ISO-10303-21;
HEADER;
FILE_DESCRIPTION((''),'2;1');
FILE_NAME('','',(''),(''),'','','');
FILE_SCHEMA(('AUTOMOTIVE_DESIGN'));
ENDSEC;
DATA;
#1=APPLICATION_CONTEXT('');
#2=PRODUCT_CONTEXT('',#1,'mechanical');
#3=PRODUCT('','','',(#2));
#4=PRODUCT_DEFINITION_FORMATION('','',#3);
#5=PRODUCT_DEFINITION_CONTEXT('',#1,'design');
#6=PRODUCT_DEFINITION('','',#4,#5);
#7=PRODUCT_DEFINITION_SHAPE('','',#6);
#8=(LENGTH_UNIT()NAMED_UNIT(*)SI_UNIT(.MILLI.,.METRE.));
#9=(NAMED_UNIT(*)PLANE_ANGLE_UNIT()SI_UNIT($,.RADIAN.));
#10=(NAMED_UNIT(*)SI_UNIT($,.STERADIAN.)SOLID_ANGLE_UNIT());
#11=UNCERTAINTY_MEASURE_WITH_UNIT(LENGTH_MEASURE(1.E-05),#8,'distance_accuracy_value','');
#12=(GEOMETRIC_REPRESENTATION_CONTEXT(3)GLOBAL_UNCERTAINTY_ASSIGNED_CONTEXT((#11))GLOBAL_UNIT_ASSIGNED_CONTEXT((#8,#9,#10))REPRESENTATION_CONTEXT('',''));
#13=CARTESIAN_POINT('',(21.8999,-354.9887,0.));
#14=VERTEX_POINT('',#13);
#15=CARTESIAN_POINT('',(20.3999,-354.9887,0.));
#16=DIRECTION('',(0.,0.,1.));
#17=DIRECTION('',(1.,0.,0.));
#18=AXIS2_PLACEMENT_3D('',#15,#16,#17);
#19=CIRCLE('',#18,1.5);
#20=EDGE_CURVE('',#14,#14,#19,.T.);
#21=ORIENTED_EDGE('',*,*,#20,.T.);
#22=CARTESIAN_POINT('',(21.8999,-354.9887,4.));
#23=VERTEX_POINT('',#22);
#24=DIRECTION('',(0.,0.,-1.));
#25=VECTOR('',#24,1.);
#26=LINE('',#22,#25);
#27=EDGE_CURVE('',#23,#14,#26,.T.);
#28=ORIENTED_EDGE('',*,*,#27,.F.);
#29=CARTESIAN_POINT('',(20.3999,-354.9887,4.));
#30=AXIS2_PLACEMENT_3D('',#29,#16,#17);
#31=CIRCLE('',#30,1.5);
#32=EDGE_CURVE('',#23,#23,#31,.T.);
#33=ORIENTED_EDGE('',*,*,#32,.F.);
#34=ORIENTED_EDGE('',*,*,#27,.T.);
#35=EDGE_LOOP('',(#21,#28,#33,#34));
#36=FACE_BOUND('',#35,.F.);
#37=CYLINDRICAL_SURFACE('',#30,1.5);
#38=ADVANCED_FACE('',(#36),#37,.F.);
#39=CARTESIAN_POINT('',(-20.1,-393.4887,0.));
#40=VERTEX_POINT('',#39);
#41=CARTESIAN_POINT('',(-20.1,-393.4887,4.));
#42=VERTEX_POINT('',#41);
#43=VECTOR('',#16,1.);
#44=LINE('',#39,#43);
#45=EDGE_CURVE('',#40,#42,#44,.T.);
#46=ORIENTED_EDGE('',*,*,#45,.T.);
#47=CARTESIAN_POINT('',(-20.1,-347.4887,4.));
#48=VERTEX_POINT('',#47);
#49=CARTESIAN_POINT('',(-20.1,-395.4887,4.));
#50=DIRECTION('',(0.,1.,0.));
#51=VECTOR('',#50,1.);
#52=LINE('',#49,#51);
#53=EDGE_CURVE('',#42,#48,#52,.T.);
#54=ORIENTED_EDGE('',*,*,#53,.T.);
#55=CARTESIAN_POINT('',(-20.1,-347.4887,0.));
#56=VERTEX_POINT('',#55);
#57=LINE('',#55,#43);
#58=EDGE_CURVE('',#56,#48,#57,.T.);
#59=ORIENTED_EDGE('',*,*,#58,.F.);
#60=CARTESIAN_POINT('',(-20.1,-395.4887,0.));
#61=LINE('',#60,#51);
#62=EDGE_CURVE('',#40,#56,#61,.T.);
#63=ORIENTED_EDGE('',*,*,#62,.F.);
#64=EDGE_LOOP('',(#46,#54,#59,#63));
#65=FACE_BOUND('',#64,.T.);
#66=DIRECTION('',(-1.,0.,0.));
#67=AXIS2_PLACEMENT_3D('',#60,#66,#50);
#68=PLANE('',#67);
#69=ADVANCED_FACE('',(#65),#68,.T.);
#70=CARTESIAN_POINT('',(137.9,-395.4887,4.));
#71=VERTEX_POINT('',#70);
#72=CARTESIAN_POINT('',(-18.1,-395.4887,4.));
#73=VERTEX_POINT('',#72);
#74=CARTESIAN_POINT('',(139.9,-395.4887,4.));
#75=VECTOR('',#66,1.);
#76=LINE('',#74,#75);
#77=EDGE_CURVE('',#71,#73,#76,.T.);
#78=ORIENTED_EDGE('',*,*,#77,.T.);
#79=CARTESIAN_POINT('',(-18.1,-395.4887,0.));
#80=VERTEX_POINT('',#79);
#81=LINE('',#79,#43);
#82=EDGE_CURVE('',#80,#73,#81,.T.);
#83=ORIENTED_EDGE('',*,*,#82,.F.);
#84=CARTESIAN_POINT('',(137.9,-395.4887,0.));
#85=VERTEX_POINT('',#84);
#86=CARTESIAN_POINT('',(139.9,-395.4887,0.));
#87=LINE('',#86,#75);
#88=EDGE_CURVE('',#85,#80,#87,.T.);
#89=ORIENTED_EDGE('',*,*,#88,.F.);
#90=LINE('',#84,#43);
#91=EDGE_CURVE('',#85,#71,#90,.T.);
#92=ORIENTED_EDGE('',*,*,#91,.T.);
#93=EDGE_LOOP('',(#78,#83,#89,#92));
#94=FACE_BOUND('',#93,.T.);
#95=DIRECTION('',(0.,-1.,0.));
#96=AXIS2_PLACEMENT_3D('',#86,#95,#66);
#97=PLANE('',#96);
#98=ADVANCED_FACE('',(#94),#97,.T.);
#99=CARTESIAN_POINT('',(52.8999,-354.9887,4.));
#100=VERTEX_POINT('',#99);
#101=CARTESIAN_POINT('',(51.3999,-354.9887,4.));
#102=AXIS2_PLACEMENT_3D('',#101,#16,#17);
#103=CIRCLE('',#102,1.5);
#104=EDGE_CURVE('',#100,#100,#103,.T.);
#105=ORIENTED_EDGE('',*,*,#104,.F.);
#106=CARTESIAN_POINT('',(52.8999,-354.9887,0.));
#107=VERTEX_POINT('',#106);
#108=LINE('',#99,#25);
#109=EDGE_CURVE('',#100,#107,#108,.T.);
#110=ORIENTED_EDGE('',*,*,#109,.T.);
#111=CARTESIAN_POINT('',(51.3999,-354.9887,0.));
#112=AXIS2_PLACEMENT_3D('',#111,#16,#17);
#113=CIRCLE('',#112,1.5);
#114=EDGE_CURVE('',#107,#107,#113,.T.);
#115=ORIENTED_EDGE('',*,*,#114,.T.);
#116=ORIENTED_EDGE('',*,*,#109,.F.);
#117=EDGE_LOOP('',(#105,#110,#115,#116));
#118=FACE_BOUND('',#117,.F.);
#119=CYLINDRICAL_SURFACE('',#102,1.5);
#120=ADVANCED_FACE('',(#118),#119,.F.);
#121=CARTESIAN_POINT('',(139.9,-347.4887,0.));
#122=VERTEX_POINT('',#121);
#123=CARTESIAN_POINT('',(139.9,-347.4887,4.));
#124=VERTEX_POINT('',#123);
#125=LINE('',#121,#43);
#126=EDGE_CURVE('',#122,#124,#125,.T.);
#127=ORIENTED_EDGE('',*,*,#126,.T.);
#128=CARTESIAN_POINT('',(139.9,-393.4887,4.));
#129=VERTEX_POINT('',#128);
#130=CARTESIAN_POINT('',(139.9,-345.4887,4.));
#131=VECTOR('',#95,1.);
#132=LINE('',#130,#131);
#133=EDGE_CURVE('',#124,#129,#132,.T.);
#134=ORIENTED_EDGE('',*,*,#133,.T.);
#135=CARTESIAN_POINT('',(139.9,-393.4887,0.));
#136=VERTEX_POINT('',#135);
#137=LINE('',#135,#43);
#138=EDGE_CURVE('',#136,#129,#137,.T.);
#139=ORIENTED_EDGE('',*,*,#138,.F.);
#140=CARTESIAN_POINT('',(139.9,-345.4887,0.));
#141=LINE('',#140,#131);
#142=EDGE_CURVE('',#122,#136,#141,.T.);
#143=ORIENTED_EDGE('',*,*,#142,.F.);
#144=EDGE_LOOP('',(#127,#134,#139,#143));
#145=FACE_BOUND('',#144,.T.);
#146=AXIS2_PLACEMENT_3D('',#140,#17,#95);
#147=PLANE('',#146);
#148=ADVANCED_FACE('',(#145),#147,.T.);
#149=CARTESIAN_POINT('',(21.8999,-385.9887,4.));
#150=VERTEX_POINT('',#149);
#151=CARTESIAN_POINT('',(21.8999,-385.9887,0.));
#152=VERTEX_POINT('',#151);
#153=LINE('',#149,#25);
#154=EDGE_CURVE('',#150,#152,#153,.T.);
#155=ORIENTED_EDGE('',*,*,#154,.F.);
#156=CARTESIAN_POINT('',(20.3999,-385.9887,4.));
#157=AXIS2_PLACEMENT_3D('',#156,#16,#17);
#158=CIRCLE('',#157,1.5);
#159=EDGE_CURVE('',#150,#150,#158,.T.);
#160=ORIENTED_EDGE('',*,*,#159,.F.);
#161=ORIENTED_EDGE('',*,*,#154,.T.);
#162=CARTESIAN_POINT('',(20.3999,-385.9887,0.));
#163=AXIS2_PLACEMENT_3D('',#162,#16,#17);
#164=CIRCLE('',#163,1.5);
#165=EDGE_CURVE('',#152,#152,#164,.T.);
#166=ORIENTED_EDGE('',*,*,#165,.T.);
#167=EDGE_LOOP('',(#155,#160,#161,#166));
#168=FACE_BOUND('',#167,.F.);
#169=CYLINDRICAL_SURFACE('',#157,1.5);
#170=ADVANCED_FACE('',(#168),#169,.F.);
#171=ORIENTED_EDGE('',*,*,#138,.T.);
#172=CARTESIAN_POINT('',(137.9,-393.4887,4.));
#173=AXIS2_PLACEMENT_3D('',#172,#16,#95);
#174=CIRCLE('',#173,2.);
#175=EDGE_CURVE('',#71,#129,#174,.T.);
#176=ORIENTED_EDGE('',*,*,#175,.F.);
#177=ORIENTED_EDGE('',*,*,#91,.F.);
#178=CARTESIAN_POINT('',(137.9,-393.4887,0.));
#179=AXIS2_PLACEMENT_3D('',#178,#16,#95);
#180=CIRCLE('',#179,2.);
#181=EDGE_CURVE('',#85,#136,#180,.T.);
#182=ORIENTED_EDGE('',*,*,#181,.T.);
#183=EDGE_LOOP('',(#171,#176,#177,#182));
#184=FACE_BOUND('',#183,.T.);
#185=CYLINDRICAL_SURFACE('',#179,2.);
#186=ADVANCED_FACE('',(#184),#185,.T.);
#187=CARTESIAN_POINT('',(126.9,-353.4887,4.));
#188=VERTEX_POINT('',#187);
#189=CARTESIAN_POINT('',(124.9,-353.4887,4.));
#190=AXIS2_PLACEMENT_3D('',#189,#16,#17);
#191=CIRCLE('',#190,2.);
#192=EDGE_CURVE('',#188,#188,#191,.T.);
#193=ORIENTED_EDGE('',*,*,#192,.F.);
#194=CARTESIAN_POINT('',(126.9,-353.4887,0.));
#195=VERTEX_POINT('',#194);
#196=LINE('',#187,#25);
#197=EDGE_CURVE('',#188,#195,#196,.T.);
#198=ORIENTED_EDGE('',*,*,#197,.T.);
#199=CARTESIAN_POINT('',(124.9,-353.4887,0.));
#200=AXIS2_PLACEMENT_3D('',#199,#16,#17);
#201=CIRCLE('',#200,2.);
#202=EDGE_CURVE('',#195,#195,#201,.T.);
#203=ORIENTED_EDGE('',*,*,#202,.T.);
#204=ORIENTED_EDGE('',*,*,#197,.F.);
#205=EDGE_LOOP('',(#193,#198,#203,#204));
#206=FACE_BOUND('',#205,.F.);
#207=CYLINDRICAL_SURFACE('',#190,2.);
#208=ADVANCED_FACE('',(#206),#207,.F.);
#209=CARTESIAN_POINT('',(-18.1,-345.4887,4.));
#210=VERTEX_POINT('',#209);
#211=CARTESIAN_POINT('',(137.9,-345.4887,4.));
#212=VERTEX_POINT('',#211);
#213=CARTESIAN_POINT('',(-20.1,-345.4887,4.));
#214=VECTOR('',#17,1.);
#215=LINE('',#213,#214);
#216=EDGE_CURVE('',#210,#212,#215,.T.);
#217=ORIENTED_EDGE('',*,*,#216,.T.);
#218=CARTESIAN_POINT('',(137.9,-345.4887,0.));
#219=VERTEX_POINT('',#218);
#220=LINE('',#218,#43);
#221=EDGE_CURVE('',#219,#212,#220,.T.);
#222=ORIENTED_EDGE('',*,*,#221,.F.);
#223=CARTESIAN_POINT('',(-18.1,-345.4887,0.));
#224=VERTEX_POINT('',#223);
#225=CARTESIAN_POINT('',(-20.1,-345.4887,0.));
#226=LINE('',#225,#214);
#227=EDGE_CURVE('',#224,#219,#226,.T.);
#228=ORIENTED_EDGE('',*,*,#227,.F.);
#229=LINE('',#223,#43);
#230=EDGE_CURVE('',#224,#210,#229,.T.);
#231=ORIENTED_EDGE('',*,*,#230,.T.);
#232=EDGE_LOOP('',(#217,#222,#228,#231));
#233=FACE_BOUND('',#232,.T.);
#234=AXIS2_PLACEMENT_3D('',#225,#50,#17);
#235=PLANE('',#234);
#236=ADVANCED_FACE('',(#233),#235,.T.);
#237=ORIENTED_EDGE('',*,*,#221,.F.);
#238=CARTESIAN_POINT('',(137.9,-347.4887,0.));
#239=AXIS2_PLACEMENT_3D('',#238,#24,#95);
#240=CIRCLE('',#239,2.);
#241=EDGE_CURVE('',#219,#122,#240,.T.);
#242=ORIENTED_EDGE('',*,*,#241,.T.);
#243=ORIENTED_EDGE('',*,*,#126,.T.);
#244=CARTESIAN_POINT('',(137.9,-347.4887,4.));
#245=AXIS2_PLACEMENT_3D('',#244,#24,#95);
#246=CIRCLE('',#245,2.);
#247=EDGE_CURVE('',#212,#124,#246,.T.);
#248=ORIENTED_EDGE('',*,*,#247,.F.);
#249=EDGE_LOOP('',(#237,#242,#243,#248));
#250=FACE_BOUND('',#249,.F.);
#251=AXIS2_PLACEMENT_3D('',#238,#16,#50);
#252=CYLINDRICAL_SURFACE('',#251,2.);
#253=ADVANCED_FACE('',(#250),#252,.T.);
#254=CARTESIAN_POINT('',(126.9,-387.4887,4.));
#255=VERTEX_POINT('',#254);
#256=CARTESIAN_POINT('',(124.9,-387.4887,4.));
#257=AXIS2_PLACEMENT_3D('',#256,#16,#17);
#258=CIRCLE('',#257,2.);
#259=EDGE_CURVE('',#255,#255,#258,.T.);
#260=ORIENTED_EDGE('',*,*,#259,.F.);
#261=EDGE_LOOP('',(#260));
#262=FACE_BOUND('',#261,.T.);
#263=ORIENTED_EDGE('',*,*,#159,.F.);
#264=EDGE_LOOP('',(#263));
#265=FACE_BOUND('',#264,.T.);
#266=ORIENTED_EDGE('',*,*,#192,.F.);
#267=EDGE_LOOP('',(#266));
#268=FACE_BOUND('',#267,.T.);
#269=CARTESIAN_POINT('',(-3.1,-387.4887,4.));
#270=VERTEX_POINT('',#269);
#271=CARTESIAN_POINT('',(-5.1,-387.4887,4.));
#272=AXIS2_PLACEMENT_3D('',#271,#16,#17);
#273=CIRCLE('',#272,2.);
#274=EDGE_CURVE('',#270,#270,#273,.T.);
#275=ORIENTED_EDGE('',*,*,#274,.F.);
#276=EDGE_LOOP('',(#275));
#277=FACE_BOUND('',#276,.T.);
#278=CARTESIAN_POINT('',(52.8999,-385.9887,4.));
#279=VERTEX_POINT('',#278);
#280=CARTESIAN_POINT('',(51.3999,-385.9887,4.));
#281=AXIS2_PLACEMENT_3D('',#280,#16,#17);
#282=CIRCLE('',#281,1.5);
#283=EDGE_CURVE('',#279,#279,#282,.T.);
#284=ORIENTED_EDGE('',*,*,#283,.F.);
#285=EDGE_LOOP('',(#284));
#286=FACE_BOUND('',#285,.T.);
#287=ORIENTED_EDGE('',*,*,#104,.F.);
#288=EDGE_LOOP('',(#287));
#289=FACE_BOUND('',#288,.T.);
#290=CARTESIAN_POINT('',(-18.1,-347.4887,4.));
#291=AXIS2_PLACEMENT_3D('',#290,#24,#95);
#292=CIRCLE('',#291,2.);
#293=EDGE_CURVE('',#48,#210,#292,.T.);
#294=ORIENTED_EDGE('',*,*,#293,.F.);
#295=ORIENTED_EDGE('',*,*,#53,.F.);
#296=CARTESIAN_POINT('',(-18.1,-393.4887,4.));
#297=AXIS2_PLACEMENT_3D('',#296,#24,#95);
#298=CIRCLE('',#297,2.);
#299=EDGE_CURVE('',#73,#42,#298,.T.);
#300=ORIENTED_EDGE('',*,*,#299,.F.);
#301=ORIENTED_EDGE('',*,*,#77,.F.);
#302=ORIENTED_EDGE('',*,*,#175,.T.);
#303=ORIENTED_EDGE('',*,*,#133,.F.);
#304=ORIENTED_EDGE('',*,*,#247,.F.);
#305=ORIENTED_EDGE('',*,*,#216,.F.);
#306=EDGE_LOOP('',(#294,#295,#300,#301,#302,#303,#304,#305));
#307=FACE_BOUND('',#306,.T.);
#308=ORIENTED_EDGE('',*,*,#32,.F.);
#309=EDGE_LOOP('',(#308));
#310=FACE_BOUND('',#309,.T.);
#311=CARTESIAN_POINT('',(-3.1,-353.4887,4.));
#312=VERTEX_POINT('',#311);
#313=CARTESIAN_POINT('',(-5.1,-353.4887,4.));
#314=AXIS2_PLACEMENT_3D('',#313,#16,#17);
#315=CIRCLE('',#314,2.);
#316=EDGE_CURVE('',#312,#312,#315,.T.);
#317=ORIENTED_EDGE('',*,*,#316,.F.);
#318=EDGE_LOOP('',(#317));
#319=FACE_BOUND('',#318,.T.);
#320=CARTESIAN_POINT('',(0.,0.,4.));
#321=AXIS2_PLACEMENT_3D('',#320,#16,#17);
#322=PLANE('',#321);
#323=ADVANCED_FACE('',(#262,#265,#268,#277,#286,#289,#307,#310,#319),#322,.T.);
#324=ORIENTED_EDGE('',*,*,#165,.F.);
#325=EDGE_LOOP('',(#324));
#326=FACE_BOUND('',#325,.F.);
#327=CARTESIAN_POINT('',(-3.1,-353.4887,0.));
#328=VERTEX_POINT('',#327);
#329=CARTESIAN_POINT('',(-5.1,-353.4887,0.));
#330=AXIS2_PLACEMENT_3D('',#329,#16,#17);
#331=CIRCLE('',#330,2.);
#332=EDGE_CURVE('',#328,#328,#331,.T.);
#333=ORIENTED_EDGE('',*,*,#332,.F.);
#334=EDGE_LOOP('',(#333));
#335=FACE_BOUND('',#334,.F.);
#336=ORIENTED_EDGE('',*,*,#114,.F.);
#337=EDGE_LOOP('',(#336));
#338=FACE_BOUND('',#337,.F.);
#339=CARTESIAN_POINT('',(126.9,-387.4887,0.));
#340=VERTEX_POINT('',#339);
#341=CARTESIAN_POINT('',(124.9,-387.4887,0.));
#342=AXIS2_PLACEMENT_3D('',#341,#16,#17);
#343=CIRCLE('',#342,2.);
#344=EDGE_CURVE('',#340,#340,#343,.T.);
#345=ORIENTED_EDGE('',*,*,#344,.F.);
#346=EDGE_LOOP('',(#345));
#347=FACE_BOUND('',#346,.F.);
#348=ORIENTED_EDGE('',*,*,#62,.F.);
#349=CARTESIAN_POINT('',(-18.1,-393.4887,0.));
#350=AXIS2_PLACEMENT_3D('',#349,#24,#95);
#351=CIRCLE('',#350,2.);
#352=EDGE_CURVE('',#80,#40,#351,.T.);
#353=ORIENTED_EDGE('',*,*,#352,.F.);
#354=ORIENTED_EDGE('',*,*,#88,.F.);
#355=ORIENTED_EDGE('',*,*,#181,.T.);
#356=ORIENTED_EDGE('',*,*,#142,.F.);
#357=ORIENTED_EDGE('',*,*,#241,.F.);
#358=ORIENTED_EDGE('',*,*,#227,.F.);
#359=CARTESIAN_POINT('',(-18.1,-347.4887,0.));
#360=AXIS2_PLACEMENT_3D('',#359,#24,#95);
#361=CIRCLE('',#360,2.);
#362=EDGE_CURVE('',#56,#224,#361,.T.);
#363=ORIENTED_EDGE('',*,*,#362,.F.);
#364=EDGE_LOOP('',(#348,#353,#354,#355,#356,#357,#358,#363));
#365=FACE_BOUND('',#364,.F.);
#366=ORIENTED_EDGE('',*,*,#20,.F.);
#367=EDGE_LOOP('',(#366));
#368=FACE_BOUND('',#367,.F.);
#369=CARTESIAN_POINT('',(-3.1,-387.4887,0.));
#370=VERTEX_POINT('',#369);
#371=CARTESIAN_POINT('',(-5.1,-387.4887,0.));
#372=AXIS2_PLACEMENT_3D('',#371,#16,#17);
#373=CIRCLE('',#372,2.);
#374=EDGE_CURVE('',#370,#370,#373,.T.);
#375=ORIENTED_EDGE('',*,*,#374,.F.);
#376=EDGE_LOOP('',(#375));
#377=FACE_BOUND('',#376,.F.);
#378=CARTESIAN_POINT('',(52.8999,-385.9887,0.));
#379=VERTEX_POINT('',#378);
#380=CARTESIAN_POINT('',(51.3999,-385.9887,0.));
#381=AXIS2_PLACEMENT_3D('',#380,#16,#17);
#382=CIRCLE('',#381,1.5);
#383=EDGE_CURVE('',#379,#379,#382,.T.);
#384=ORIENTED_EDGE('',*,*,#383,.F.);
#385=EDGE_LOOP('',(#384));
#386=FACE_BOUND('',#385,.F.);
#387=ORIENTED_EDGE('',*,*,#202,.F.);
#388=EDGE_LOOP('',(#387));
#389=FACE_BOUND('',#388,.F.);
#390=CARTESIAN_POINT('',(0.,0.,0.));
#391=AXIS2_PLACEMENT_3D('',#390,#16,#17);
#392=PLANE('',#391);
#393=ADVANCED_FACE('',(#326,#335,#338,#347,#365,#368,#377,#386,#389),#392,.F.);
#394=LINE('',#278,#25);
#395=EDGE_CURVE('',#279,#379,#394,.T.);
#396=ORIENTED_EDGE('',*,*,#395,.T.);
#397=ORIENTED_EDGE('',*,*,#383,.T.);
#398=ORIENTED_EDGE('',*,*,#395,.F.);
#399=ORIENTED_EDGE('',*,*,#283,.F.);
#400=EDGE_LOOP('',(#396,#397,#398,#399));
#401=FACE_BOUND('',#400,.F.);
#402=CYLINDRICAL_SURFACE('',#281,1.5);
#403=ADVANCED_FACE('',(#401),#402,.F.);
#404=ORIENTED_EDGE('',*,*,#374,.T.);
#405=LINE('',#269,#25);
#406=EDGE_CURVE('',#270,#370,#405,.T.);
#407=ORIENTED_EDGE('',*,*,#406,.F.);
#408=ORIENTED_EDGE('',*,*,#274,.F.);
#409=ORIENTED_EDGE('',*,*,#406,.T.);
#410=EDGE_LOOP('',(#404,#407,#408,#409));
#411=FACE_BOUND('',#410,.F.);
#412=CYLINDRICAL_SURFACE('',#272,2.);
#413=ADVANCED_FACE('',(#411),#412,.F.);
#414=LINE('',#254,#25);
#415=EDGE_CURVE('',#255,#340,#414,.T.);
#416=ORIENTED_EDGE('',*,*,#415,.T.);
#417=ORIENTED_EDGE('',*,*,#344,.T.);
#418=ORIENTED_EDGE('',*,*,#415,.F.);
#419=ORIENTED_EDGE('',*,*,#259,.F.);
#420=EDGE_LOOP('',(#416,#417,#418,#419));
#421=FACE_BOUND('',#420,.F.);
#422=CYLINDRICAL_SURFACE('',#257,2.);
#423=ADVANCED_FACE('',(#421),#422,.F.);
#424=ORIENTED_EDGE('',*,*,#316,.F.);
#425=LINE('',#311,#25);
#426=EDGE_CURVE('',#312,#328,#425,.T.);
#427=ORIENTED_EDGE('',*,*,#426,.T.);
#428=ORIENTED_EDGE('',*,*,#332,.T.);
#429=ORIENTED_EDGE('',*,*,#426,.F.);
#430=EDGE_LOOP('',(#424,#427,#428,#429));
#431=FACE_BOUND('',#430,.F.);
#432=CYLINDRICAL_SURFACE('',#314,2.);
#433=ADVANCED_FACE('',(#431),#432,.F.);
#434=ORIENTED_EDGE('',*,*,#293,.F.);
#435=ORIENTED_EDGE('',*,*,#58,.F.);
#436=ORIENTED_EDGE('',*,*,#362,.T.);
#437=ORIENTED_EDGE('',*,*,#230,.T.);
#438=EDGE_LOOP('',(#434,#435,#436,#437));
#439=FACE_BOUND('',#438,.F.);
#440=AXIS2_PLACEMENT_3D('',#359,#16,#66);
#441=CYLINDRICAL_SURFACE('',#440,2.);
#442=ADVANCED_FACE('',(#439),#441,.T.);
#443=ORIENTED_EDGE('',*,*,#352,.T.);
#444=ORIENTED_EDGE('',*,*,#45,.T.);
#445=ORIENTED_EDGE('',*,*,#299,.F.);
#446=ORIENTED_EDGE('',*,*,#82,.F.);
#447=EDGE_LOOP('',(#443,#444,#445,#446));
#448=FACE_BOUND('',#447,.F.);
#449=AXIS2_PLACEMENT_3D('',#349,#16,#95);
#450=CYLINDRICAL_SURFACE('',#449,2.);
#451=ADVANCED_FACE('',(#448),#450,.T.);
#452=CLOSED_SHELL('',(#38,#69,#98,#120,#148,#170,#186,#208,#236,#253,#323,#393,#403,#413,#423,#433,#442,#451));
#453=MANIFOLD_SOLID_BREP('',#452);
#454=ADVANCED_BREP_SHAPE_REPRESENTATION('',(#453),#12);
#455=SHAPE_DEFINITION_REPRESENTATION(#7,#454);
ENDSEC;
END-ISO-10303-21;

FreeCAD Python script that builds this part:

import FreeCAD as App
import Part
import Sketcher

V = App.Vector
Q = App.Units.Quantity


def edges_at(feature, points):
    """Names of the edges that pass closest to the given points."""
    edges = feature.Shape.Edges
    near = lambda p: min(range(len(edges)), key=lambda i: edges[i].distToShape(Part.Vertex(*p))[0])
    return sorted({f"Edge{near(p) + 1}" for p in points})

doc = App.newDocument("Part")
body = doc.addObject("PartDesign::Body", "Body")

sketch1 = body.newObject("Sketcher::SketchObject", "Sketch")
sketch1.AttachmentSupport = (doc.getObject("XY_Plane"), [""])
sketch1.MapMode = "FlatFace"
sketch1.addGeometry(Part.LineSegment(V(-20, -395, 0), V(140, -395, 0)), False)
sketch1.addGeometry(Part.LineSegment(V(140, -395, 0), V(140, -345, 0)), False)
sketch1.addGeometry(Part.LineSegment(V(140, -345, 0), V(-20, -345, 0)), False)
sketch1.addGeometry(Part.LineSegment(V(-20, -345, 0), V(-20, -395, 0)), False)
sketch1.addConstraint(Sketcher.Constraint("Coincident", 0, 2, 1, 1))
sketch1.addConstraint(Sketcher.Constraint("Coincident", 1, 2, 2, 1))
sketch1.addConstraint(Sketcher.Constraint("Coincident", 2, 2, 3, 1))
sketch1.addConstraint(Sketcher.Constraint("Coincident", 3, 2, 0, 1))
sketch1.addConstraint(Sketcher.Constraint("Horizontal", 0))
sketch1.addConstraint(Sketcher.Constraint("Vertical", 1))
sketch1.addConstraint(Sketcher.Constraint("Horizontal", 2))
sketch1.addConstraint(Sketcher.Constraint("Vertical", 3))
sketch1.addConstraint(Sketcher.Constraint("DistanceY", 1, 1, 1, 2, Q("50 mm")))
sketch1.addConstraint(Sketcher.Constraint("DistanceX", 0, 1, 0, 2, Q("160 mm")))
sketch1.addConstraint(Sketcher.Constraint("DistanceX", -1, 1, 0, 2, Q("139.9 mm")))
sketch1.addConstraint(Sketcher.Constraint("DistanceY", 0, 2, -1, 1, Q("395.4887 mm")))
pad1 = body.newObject("PartDesign::Pad", "Pad")
pad1.Profile = sketch1
pad1.Length = 4
doc.recompute()

fillet = body.newObject("PartDesign::Fillet", "Fillet")
fillet.Base = (pad1, edges_at(pad1, [
    (-20.1, -395.489, 2),
    (-20.1, -345.489, 2),
    (139.9, -395.489, 2),
    (139.9, -345.489, 2),
]))
fillet.Radius = 2

sketch2 = body.newObject("Sketcher::SketchObject", "Sketch001")
sketch2.AttachmentSupport = (doc.getObject("XY_Plane"), [""])
sketch2.MapMode = "FlatFace"
sketch2.AttachmentOffset = App.Placement(V(0, 0, 4), App.Rotation())
sketch2.addGeometry(Part.Circle(V(124.9, -387.5, 0), V(0, 0, 1), 2), False)
sketch2.addGeometry(Part.Circle(V(124.9, -353.5, 0), V(0, 0, 1), 2), False)
sketch2.addGeometry(Part.Circle(V(51.4, -386, 0), V(0, 0, 1), 1.5), False)
sketch2.addGeometry(Part.Circle(V(51.4, -355, 0), V(0, 0, 1), 1.5), False)
sketch2.addGeometry(Part.Circle(V(20.4, -355, 0), V(0, 0, 1), 1.5), False)
sketch2.addGeometry(Part.Circle(V(20.4, -386, 0), V(0, 0, 1), 1.5), False)
sketch2.addGeometry(Part.Circle(V(-5.1, -387.5, 0), V(0, 0, 1), 2), False)
sketch2.addGeometry(Part.Circle(V(-5.1, -353.5, 0), V(0, 0, 1), 2), False)
sketch2.addConstraint(Sketcher.Constraint("Equal", 0, 1))
sketch2.addConstraint(Sketcher.Constraint("Equal", 2, 3))
sketch2.addConstraint(Sketcher.Constraint("Equal", 3, 4))
sketch2.addConstraint(Sketcher.Constraint("Equal", 4, 5))
sketch2.addConstraint(Sketcher.Constraint("Equal", 1, 6))
sketch2.addConstraint(Sketcher.Constraint("Equal", 6, 7))
sketch2.addConstraint(Sketcher.Constraint("Horizontal", 3, 3, 4, 3))
sketch2.addConstraint(Sketcher.Constraint("Horizontal", 2, 3, 5, 3))
sketch2.addConstraint(Sketcher.Constraint("Horizontal", 0, 3, 6, 3))
sketch2.addConstraint(Sketcher.Constraint("Horizontal", 1, 3, 7, 3))
sketch2.addConstraint(Sketcher.Constraint("Vertical", 0, 3, 1, 3))
sketch2.addConstraint(Sketcher.Constraint("Vertical", 2, 3, 3, 3))
sketch2.addConstraint(Sketcher.Constraint("Vertical", 4, 3, 5, 3))
sketch2.addConstraint(Sketcher.Constraint("Vertical", 6, 3, 7, 3))
sketch2.addConstraint(Sketcher.Constraint("Diameter", 0, Q("4 mm")))
sketch2.addConstraint(Sketcher.Constraint("Diameter", 2, Q("3 mm")))
sketch2.addConstraint(Sketcher.Constraint("DistanceY", 0, 3, 1, 3, Q("34 mm")))
sketch2.addConstraint(Sketcher.Constraint("DistanceY", 2, 3, 3, 3, Q("31 mm")))
sketch2.addConstraint(Sketcher.Constraint("DistanceX", 4, 3, 3, 3, Q("31 mm")))
sketch2.addConstraint(Sketcher.Constraint("DistanceX", 6, 3, 0, 3, Q("130 mm")))
sketch2.addConstraint(Sketcher.Constraint("DistanceX", -1, 1, 0, 3, Q("124.9 mm")))
sketch2.addConstraint(Sketcher.Constraint("DistanceX", -1, 1, 2, 3, Q("51.4 mm")))
sketch2.addConstraint(Sketcher.Constraint("DistanceY", 0, 3, 2, 3, Q("1.5 mm")))
sketch2.addConstraint(Sketcher.Constraint("DistanceY", 0, 3, -1, 1, Q("387.4887 mm")))
pocket1 = body.newObject("PartDesign::Pocket", "Pocket")
pocket1.Profile = sketch2
pocket1.Type = "ThroughAll"

doc.recompute()
